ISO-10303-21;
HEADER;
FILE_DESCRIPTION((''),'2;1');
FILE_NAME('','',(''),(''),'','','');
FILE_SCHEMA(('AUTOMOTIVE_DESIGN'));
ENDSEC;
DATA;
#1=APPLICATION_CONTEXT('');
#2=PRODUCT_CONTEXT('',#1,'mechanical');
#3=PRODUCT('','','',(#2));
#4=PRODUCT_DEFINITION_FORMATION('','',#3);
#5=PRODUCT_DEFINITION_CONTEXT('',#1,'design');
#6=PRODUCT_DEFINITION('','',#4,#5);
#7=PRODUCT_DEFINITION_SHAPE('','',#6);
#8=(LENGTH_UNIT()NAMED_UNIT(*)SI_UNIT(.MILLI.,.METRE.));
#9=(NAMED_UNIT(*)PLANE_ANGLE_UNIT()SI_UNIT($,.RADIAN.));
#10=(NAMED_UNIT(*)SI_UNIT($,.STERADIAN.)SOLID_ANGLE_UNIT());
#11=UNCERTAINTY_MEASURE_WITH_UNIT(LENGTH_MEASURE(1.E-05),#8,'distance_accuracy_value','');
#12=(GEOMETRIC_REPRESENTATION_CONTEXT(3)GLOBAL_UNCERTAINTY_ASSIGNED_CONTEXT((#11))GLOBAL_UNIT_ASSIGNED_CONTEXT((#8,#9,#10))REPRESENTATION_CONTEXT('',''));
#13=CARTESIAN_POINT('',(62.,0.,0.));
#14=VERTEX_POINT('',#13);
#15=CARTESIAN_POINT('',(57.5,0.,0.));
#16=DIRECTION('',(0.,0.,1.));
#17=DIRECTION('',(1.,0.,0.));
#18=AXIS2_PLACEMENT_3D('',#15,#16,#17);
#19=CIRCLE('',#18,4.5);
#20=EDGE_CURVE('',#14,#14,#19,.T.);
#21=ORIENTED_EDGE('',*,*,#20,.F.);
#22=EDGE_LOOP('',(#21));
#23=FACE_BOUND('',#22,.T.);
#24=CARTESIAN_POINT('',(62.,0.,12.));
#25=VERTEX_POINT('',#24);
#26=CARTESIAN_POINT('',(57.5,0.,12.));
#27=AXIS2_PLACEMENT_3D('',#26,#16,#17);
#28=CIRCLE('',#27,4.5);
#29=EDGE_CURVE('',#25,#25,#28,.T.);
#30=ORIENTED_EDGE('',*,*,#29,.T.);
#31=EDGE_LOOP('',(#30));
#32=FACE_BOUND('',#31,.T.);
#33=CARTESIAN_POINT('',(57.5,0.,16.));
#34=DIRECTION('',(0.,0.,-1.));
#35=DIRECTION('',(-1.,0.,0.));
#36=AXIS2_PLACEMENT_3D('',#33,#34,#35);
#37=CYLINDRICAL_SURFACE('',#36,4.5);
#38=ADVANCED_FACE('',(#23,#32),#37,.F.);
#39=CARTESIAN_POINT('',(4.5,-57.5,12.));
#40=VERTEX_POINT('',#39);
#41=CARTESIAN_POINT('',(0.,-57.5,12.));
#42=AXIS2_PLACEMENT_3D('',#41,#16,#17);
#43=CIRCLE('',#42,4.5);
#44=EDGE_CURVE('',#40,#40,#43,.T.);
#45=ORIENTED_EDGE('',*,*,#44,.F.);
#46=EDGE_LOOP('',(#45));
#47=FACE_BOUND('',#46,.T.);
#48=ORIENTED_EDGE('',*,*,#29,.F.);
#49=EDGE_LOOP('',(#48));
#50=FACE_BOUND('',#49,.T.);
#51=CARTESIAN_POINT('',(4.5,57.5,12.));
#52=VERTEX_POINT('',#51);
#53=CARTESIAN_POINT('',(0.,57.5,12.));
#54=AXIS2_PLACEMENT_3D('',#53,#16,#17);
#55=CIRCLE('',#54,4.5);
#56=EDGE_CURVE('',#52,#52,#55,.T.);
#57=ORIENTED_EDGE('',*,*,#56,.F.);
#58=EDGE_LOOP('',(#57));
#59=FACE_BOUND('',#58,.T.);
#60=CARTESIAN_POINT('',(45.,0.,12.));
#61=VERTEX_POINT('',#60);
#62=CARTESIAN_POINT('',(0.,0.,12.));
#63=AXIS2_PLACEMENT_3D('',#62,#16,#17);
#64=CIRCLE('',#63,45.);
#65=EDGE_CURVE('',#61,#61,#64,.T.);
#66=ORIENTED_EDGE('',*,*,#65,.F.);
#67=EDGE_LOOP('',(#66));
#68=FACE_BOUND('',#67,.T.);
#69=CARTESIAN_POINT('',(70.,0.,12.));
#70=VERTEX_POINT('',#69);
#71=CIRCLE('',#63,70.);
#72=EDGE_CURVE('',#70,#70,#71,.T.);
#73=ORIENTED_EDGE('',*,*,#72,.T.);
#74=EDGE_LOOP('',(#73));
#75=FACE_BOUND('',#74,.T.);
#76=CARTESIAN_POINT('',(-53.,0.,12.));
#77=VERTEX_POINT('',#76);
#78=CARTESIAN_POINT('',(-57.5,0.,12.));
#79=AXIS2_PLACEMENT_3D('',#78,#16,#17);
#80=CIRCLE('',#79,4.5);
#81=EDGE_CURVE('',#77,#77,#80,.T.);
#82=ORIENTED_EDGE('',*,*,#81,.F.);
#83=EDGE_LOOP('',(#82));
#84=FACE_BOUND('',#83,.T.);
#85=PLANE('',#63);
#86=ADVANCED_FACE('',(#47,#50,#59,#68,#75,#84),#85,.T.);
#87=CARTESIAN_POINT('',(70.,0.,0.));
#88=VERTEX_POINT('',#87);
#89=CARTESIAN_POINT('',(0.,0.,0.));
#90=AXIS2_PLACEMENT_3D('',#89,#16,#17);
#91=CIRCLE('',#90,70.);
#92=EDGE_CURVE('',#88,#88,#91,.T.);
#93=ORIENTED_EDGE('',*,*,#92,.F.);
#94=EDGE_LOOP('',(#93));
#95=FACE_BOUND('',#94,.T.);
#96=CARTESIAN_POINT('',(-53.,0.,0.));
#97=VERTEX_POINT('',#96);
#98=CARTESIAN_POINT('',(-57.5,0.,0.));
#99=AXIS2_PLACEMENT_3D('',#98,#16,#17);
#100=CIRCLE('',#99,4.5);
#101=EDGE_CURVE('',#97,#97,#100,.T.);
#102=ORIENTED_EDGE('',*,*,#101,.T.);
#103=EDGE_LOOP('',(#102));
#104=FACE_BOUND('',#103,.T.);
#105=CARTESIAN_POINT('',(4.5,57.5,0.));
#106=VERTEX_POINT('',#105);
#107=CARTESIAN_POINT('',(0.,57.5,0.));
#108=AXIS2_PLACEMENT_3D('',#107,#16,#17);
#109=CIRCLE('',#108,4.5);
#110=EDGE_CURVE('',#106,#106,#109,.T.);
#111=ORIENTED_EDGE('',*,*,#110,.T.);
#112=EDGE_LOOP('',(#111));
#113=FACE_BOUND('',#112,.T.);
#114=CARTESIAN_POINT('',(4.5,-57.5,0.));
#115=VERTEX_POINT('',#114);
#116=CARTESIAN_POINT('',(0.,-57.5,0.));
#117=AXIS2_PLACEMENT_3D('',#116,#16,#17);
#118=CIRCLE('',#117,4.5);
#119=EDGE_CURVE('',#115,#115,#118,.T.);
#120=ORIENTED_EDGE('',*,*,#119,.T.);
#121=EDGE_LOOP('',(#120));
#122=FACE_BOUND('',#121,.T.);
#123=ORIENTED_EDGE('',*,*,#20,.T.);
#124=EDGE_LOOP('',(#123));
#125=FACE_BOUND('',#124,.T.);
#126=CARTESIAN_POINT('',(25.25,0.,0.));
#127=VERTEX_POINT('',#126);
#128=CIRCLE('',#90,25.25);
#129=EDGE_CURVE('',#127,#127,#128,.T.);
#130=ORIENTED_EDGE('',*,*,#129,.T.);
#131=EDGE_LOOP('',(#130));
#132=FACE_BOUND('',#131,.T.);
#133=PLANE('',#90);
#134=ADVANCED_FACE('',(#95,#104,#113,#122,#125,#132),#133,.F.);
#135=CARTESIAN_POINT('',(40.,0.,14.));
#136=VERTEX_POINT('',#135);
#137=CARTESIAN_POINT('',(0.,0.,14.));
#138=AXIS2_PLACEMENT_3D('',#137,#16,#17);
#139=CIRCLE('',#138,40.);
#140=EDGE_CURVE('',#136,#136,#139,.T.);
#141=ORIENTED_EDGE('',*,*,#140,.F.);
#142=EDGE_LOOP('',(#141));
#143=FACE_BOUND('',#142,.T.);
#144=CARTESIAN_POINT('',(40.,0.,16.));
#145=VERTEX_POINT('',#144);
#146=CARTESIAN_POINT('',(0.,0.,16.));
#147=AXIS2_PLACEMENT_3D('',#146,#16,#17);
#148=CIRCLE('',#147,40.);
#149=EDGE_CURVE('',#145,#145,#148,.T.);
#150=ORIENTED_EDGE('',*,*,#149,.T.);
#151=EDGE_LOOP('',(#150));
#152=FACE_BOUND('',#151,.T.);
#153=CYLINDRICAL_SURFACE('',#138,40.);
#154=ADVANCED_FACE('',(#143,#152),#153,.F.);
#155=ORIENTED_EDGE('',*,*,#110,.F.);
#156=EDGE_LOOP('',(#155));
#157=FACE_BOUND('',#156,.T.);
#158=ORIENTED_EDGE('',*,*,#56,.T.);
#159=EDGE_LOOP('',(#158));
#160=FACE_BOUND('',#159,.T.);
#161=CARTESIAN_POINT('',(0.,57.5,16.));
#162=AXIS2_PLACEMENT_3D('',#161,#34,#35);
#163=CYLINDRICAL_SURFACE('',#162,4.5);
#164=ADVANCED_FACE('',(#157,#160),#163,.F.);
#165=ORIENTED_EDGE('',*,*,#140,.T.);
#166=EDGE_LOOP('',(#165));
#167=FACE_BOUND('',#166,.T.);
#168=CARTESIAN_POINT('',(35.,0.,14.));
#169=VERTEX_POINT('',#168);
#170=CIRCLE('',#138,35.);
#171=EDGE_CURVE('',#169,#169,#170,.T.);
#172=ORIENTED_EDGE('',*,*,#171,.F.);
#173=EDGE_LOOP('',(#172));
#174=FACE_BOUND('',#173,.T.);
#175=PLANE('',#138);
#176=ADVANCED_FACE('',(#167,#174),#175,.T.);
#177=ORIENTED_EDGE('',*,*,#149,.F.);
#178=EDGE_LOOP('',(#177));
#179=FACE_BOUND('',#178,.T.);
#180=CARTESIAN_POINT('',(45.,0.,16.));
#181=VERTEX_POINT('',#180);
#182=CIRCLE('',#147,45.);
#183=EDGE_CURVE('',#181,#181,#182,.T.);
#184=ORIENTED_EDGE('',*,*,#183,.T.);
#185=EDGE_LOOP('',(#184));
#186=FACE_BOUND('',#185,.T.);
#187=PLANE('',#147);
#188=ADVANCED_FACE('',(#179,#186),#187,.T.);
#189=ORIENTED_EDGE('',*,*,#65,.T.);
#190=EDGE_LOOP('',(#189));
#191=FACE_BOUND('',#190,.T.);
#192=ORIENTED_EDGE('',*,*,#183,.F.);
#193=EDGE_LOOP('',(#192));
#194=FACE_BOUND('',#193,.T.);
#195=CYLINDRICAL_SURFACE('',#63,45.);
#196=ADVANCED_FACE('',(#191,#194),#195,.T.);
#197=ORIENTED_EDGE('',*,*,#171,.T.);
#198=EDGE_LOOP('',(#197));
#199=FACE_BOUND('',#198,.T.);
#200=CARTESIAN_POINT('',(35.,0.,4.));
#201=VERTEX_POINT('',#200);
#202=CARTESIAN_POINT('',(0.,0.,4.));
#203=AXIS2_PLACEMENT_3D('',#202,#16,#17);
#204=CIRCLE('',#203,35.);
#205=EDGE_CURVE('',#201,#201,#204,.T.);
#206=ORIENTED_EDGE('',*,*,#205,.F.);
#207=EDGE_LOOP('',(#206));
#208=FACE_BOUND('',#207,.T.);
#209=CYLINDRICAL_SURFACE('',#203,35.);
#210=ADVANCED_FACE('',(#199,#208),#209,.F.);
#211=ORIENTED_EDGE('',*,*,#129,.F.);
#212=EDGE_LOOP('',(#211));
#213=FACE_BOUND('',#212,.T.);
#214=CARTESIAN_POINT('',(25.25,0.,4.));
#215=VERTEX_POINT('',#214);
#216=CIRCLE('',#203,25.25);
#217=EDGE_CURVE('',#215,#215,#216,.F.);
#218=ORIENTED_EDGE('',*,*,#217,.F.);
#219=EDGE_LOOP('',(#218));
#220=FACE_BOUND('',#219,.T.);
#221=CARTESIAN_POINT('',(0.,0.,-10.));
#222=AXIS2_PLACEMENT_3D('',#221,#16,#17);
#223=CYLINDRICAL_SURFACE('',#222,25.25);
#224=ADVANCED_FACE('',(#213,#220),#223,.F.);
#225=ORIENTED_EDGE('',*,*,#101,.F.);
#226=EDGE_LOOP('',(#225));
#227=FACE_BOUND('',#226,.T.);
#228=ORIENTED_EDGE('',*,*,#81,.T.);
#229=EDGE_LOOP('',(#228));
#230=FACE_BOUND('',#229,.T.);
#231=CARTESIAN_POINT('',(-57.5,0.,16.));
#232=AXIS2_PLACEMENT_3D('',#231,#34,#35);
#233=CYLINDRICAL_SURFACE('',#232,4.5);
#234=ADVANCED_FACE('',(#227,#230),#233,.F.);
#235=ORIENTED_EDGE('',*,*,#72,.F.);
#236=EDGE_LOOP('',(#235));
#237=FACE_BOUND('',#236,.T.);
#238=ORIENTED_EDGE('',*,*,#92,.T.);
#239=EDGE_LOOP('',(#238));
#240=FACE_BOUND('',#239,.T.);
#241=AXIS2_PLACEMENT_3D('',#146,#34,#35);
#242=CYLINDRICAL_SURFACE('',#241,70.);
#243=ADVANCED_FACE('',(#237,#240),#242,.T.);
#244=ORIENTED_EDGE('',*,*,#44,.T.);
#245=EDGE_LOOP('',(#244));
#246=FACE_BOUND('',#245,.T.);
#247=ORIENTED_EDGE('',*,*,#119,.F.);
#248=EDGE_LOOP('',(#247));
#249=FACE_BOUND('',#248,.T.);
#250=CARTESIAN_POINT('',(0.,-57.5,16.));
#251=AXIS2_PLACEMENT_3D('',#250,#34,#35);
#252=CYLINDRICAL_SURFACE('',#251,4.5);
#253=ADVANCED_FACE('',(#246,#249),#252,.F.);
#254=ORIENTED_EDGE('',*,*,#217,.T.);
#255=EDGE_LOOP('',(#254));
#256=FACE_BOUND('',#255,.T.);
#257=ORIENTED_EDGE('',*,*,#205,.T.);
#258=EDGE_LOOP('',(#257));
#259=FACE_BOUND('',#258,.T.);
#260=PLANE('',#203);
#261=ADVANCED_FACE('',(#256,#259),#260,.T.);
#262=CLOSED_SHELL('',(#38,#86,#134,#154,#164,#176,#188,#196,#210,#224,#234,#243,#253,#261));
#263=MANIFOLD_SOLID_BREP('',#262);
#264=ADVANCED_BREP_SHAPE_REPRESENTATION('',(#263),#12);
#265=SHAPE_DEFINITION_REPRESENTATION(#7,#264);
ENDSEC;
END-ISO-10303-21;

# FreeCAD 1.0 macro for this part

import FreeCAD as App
import Part
import Sketcher
from FreeCAD import Vector
Q = App.Units.Quantity

doc = App.newDocument("Part")
body = doc.addObject("PartDesign::Body", "Body")

# Sketch on XY plane
sketch1 = doc.addObject("Sketcher::SketchObject", "Sketch")
body.addObject(sketch1)
sketch1.AttachmentSupport = (doc.XY_Plane, [""])
sketch1.MapMode = "FlatFace"
sketch1.addGeometry([
    Part.Circle(Vector(0, 0, 0), Vector(0, 0, 1), 70),  # 0
    Part.Circle(Vector(0, -57.5, 0), Vector(0, 0, 1), 4.5),  # 1
    Part.Circle(Vector(-57.5, 0, 0), Vector(0, 0, 1), 4.5),  # 2
    Part.Circle(Vector(57.5, 0, 0), Vector(0, 0, 1), 4.5),  # 3
    Part.Circle(Vector(0, 57.5, 0), Vector(0, 0, 1), 4.5),  # 4
], False)
sketch1.addConstraint([
    Sketcher.Constraint("Coincident", 0, 3, -1, 1),
    Sketcher.Constraint("Equal", 1, 2),
    Sketcher.Constraint("Equal", 2, 3),
    Sketcher.Constraint("Equal", 3, 4),
    Sketcher.Constraint("Symmetric", 2, 3, 3, 3, -1, 1),
    Sketcher.Constraint("Symmetric", 1, 3, 4, 3, -1, 1),
    Sketcher.Constraint("PointOnObject", 1, 3, -2),
    Sketcher.Constraint("PointOnObject", 2, 3, -1),
    Sketcher.Constraint("Diameter", 0, Q("140 mm")),
    Sketcher.Constraint("Diameter", 1, Q("9 mm")),
    Sketcher.Constraint("DistanceX", 2, 3, 3, 3, Q("115 mm")),
    Sketcher.Constraint("DistanceY", 1, 3, 4, 3, Q("115 mm")),
])
pad1 = doc.addObject("PartDesign::Pad", "Pad")
body.addObject(pad1)
pad1.Profile = sketch1
pad1.Length = 16

# Sketch on XY plane
sketch2 = doc.addObject("Sketcher::SketchObject", "Sketch001")
body.addObject(sketch2)
sketch2.AttachmentSupport = (doc.XY_Plane, [""])
sketch2.MapMode = "FlatFace"
sketch2.AttachmentOffset = App.Placement(Vector(0, 0, 12), App.Rotation())
sketch2.addGeometry([
    Part.Circle(Vector(0, 0, 0), Vector(0, 0, 1), 70),
    Part.Circle(Vector(0, 0, 0), Vector(0, 0, 1), 45),
], False)
sketch2.addConstraint([
    Sketcher.Constraint("Coincident", 0, 3, -1, 1),
    Sketcher.Constraint("Coincident", 1, 3, -1, 1),
    Sketcher.Constraint("Diameter", 0, Q("140 mm")),
    Sketcher.Constraint("Diameter", 1, Q("90 mm")),
])
pocket1 = doc.addObject("PartDesign::Pocket", "Pocket")
body.addObject(pocket1)
pocket1.Profile = sketch2
pocket1.Length = 4
pocket1.Reversed = True

# Sketch on XY plane
sketch3 = doc.addObject("Sketcher::SketchObject", "Sketch002")
body.addObject(sketch3)
sketch3.AttachmentSupport = (doc.XY_Plane, [""])
sketch3.MapMode = "FlatFace"
sketch3.AttachmentOffset = App.Placement(Vector(0, 0, 16), App.Rotation())
sketch3.addGeometry(Part.Circle(Vector(0, 0, 0), Vector(0, 0, 1), 40), False)
sketch3.addConstraint([
    Sketcher.Constraint("Coincident", 0, 3, -1, 1),
    Sketcher.Constraint("Diameter", 0, Q("80 mm")),
])
pocket2 = doc.addObject("PartDesign::Pocket", "Pocket001")
body.addObject(pocket2)
pocket2.Profile = sketch3
pocket2.Length = 2

# Sketch on XY plane
sketch4 = doc.addObject("Sketcher::SketchObject", "Sketch003")
body.addObject(sketch4)
sketch4.AttachmentSupport = (doc.XY_Plane, [""])
sketch4.MapMode = "FlatFace"
sketch4.AttachmentOffset = App.Placement(Vector(0, 0, 14), App.Rotation())
sketch4.addGeometry(Part.Circle(Vector(0, 0, 0), Vector(0, 0, 1), 25), False)
sketch4.addConstraint([
    Sketcher.Constraint("Coincident", 0, 3, -1, 1),
    Sketcher.Constraint("Diameter", 0, Q("50.5 mm")),
])
pocket3 = doc.addObject("PartDesign::Pocket", "Pocket002")
body.addObject(pocket3)
pocket3.Profile = sketch4
pocket3.Length = 24

# Sketch on XY plane
sketch5 = doc.addObject("Sketcher::SketchObject", "Sketch004")
body.addObject(sketch5)
sketch5.AttachmentSupport = (doc.XY_Plane, [""])
sketch5.MapMode = "FlatFace"
sketch5.AttachmentOffset = App.Placement(Vector(0, 0, 14), App.Rotation())
sketch5.addGeometry(Part.Circle(Vector(0, 0, 0), Vector(0, 0, 1), 35), False)
sketch5.addConstraint([
    Sketcher.Constraint("Coincident", 0, 3, -1, 1),
    Sketcher.Constraint("Diameter", 0, Q("70 mm")),
])
pocket4 = doc.addObject("PartDesign::Pocket", "Pocket003")
body.addObject(pocket4)
pocket4.Profile = sketch5
pocket4.Length = 10

doc.recompute()
